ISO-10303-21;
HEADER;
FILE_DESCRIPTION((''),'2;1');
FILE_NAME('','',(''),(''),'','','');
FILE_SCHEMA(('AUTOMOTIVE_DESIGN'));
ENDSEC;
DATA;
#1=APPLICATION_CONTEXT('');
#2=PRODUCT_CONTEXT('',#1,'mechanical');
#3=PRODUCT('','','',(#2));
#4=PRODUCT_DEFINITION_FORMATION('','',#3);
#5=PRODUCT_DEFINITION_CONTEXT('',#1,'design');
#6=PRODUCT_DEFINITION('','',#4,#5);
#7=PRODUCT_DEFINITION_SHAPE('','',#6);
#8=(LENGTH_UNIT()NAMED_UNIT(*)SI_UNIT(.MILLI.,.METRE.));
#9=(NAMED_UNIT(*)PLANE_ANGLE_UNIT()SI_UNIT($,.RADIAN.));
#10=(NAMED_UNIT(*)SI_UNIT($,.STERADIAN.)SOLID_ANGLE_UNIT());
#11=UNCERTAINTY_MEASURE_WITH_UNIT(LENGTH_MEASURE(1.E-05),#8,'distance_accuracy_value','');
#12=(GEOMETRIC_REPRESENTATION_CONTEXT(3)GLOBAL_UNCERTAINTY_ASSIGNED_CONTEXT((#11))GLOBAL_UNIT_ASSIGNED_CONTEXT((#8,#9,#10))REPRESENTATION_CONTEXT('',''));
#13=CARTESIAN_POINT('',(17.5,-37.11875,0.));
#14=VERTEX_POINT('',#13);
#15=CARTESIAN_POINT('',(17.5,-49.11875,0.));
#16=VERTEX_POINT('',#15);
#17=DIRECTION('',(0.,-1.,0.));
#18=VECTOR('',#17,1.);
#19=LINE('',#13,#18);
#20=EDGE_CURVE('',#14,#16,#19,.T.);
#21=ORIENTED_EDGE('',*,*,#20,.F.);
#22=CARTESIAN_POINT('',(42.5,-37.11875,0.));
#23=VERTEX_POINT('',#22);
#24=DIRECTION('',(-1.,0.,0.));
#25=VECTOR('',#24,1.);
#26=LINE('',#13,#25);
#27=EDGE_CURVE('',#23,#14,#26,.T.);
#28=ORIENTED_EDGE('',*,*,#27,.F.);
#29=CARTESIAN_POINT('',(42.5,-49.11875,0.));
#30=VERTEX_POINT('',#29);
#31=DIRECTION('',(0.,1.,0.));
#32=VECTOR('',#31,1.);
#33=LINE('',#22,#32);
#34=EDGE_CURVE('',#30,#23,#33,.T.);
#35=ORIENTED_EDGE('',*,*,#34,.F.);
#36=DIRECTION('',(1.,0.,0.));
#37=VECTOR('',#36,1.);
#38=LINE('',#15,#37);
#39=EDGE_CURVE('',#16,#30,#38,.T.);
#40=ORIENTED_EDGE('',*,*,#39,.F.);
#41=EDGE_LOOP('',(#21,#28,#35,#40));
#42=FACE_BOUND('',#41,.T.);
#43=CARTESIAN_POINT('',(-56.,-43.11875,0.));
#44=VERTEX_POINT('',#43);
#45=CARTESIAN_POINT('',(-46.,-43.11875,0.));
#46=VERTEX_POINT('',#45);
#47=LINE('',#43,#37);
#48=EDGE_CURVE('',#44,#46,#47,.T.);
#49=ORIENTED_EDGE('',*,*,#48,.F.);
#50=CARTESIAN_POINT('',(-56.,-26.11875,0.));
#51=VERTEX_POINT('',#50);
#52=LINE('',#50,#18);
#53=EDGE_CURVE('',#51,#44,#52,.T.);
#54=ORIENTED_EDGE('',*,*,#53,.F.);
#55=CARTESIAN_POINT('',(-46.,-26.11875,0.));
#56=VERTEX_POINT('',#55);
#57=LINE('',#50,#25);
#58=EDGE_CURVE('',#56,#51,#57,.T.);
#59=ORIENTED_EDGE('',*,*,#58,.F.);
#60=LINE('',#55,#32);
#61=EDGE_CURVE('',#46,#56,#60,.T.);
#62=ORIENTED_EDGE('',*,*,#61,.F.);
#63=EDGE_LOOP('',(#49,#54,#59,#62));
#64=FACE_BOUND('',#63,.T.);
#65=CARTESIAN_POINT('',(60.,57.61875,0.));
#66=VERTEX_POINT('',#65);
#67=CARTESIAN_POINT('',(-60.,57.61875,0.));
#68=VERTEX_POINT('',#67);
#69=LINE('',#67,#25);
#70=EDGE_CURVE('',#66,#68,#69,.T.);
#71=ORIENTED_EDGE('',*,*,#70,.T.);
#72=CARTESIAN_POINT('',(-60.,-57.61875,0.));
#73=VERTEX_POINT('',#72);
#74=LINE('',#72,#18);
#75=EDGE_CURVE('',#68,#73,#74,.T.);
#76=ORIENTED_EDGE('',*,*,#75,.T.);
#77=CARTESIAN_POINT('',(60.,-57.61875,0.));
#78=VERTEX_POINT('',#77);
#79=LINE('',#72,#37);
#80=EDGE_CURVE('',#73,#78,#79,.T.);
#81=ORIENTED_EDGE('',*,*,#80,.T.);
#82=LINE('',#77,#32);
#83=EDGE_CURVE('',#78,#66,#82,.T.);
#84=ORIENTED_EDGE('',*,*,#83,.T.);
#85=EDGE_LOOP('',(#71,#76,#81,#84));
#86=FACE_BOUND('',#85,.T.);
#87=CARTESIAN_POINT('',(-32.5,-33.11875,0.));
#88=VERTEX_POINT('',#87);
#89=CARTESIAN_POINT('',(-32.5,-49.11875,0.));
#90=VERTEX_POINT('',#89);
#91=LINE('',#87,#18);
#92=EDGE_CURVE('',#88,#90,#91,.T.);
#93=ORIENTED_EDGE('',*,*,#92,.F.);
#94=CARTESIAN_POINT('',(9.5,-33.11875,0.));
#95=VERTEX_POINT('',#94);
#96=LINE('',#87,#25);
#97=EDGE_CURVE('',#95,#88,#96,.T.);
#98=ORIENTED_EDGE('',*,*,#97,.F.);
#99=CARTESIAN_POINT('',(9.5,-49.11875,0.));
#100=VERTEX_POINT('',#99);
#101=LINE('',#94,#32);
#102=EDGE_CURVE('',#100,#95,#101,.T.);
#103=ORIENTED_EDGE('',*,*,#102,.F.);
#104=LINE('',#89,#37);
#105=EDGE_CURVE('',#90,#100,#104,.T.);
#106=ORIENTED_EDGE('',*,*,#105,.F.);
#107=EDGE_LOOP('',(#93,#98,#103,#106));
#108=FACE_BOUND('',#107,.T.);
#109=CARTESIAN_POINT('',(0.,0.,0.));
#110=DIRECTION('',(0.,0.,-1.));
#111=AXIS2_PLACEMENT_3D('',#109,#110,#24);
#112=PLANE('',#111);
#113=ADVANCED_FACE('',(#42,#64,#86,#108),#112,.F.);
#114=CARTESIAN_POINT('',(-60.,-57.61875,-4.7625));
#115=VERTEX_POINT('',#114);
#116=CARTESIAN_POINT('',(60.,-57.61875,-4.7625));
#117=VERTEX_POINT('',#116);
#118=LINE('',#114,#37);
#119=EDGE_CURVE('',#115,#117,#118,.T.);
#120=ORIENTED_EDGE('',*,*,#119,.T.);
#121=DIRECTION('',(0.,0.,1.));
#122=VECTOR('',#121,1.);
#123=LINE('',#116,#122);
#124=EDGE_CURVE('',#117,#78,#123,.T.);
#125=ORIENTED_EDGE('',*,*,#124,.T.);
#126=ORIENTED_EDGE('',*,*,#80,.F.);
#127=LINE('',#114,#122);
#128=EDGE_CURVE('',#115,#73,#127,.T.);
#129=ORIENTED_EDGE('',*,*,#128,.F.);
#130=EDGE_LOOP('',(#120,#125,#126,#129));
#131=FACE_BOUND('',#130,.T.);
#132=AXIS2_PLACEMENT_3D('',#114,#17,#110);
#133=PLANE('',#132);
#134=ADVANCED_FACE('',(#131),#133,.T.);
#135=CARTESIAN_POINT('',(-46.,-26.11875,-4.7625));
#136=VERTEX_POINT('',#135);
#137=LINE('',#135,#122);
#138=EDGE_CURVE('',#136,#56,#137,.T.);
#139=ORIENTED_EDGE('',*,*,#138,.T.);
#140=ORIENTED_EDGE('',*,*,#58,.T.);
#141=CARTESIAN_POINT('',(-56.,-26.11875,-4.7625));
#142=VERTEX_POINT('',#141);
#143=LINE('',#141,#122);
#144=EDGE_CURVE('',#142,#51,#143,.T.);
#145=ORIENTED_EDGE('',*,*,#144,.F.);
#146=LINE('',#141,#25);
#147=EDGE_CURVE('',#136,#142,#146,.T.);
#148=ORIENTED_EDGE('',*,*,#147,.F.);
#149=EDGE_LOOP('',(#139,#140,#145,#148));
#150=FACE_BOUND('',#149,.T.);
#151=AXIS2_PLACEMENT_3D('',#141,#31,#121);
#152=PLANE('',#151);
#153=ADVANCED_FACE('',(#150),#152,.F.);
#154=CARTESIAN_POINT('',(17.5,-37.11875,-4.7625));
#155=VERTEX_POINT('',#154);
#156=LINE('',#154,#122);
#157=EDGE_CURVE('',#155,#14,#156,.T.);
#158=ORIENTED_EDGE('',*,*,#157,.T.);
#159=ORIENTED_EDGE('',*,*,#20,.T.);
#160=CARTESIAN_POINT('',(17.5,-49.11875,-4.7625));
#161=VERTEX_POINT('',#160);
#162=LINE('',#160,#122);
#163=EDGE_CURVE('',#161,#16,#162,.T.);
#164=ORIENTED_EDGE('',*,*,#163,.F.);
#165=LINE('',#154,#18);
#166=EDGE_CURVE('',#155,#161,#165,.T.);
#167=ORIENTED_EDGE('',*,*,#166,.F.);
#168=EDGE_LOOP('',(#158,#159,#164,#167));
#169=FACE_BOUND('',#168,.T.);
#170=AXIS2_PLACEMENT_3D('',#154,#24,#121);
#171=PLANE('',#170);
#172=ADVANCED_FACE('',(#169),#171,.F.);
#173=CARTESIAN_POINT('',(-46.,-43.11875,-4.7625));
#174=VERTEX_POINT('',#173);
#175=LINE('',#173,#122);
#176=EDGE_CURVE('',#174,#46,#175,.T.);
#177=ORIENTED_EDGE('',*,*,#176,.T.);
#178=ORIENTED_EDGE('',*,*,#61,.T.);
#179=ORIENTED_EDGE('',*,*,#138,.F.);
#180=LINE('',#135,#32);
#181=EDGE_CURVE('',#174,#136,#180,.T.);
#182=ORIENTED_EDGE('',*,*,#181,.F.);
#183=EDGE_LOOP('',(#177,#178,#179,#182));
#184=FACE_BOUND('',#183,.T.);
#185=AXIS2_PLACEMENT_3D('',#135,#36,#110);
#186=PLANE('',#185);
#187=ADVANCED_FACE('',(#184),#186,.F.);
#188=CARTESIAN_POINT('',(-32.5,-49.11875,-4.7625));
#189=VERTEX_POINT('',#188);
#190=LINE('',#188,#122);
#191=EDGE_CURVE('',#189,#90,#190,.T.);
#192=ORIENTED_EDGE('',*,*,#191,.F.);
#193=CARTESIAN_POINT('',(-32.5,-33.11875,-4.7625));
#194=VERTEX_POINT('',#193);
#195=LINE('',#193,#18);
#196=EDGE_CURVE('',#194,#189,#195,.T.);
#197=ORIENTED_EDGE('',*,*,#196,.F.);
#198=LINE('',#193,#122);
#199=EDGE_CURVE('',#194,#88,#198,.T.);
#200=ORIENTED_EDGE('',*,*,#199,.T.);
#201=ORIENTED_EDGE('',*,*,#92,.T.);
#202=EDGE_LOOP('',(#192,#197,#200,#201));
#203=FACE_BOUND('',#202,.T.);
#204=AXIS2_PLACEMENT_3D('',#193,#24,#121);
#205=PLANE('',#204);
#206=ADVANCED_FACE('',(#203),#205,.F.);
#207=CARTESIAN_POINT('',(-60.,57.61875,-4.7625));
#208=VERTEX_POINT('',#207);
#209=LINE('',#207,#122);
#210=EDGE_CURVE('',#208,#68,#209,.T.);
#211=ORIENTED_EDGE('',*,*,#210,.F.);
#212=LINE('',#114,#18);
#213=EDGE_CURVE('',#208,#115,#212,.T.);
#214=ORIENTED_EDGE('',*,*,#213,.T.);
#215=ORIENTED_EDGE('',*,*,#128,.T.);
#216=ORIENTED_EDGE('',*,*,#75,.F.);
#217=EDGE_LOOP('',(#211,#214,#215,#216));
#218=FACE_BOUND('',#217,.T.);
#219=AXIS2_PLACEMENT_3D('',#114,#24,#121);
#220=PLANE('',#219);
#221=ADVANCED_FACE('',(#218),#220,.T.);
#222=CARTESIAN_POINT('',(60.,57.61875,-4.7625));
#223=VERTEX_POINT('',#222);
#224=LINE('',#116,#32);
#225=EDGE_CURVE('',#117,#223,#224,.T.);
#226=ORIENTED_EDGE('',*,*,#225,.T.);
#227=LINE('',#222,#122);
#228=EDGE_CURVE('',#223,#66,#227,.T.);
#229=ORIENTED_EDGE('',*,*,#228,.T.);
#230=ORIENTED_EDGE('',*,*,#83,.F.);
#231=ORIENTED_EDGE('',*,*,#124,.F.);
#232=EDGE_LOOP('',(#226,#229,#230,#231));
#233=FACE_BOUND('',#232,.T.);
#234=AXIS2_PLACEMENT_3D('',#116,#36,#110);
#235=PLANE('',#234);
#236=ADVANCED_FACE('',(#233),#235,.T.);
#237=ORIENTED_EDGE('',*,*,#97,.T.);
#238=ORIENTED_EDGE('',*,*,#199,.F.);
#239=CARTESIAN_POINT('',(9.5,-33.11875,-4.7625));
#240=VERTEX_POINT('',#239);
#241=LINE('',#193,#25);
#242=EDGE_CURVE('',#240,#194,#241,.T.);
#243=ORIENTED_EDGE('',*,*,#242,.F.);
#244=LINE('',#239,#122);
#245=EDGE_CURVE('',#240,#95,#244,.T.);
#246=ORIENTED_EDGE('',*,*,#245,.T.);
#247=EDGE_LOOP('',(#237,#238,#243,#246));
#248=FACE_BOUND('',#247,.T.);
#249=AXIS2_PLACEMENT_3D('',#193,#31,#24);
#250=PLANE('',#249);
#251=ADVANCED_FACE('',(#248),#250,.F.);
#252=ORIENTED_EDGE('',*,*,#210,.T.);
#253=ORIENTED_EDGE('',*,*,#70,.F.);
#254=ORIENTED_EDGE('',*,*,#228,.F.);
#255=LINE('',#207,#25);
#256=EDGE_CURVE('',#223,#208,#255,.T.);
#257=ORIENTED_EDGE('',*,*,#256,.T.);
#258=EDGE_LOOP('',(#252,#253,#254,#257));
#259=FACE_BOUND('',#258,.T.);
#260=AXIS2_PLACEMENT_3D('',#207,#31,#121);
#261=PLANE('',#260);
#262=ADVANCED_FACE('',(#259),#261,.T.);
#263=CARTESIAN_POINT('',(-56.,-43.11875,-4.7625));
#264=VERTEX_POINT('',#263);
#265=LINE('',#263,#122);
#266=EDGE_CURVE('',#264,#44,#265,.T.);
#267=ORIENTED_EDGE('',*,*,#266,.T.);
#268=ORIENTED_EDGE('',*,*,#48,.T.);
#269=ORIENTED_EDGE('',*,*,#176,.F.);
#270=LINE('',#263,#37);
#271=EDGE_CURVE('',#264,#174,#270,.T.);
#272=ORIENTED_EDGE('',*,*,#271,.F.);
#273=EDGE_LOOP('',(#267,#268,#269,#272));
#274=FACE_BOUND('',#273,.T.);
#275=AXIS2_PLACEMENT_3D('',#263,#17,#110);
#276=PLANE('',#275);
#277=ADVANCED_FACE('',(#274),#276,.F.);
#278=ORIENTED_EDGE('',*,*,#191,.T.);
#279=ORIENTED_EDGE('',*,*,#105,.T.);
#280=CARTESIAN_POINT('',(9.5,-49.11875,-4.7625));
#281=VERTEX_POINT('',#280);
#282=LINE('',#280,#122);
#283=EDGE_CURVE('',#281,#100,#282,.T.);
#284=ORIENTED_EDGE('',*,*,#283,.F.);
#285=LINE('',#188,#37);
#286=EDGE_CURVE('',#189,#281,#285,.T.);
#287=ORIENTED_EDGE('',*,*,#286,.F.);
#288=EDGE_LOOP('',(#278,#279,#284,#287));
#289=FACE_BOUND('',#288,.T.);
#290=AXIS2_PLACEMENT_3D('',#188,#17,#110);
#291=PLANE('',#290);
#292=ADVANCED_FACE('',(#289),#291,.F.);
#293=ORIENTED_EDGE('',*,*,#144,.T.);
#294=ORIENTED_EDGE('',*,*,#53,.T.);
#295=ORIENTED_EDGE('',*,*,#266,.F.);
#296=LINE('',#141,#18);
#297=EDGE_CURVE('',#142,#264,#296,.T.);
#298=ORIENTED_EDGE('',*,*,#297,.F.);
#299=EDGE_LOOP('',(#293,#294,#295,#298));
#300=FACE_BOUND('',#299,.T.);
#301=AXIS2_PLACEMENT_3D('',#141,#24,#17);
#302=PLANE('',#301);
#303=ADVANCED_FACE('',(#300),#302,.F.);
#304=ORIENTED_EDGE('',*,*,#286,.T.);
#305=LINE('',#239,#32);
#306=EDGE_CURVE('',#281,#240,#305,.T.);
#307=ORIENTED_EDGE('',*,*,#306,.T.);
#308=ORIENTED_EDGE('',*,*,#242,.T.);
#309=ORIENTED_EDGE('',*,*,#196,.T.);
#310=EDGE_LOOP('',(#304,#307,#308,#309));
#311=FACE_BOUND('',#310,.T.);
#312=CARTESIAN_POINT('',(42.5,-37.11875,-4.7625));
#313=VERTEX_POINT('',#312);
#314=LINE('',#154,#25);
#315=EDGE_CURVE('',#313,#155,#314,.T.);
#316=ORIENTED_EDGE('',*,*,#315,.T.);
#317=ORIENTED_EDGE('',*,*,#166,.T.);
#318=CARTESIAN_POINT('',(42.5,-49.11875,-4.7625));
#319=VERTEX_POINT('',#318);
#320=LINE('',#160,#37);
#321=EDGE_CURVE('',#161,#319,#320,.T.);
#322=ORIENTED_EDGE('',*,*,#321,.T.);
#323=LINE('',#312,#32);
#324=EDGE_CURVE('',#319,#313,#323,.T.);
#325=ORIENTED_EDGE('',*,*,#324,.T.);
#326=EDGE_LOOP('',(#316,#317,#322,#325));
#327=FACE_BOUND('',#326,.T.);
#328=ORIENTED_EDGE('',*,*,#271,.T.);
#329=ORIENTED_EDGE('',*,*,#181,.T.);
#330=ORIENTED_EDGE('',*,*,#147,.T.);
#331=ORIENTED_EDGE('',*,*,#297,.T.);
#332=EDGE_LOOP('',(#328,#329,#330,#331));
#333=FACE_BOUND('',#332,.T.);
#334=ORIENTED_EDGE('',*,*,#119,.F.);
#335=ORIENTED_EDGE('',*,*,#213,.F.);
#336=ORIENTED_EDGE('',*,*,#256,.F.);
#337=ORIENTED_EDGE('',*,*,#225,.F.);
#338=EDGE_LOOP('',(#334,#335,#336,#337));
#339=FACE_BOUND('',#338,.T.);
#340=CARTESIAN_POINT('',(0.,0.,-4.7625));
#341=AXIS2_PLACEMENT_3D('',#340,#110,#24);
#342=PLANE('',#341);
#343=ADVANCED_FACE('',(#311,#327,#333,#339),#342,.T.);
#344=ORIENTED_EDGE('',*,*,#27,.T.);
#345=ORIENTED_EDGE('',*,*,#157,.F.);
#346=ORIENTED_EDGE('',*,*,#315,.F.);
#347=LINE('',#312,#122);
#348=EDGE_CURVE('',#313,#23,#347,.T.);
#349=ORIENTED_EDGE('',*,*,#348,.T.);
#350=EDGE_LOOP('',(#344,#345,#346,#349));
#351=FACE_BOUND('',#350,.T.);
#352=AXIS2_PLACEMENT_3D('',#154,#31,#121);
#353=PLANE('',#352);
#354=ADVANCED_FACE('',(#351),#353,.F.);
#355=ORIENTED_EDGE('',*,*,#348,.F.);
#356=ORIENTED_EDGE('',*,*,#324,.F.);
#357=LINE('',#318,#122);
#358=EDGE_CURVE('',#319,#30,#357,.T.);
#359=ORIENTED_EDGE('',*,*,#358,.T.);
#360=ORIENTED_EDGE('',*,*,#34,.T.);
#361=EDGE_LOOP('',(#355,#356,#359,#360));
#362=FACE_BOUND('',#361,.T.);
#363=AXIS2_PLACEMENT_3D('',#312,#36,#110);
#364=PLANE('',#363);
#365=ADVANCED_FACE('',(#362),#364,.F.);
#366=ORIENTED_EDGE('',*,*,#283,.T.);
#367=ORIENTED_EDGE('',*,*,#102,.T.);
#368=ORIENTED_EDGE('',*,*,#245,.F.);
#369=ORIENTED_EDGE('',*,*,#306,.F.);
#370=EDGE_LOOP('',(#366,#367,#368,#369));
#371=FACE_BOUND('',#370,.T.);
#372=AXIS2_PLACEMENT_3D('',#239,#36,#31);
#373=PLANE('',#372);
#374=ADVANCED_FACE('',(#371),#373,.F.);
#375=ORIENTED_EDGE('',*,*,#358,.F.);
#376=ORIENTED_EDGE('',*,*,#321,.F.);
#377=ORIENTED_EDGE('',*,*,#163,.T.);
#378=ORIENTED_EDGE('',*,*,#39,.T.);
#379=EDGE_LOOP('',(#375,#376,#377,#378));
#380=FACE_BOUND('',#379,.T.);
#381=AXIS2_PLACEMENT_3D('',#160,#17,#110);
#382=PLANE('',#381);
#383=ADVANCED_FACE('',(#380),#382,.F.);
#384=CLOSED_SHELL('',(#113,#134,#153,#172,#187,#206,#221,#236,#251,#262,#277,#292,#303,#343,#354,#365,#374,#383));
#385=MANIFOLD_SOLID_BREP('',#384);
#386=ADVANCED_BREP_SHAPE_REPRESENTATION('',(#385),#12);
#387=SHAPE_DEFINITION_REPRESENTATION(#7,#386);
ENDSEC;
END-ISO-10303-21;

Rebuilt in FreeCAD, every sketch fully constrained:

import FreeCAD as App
import Part
import Sketcher
Q = App.Units.Quantity


def add_polygon(sketch, points):
    """Adds a closed chain of lines whose ends are joined by coincident constraints."""
    first, n = sketch.GeometryCount, len(points)
    for a, b in zip(points, points[1:] + points[:1]):
        sketch.addGeometry(Part.LineSegment(App.Vector(*a, 0), App.Vector(*b, 0)), False)
    for i in range(n):
        sketch.addConstraint(Sketcher.Constraint("Coincident", first + i, 2, first + (i + 1) % n, 1))

doc = App.newDocument("Part")
body = doc.addObject("PartDesign::Body", "Body")

# Sketch on XY plane
sketch1 = body.newObject("Sketcher::SketchObject", "Sketch")
sketch1.AttachmentSupport = (doc.getObject("XY_Plane"), [""])
sketch1.MapMode = "FlatFace"
add_polygon(sketch1, [(-60, 58), (-60, -58), (60, -58), (60, 58)])  # lines 0-3
sketch1.addConstraint([
    Sketcher.Constraint("Vertical", 0),
    Sketcher.Constraint("Horizontal", 1),
    Sketcher.Constraint("Vertical", 2),
    Sketcher.Constraint("Horizontal", 3),
    Sketcher.Constraint("Symmetric", 0, 2, 2, 2, -1, 1),
    Sketcher.Constraint("DistanceX", 1, 1, 1, 2, Q("120 mm")),
    Sketcher.Constraint("DistanceY", 0, 2, 0, 1, Q("115.2375 mm")),
])
pad1 = body.newObject("PartDesign::Pad", "Pad")
pad1.Profile = sketch1
pad1.Length = 4.7625
pad1.Reversed = True

# Sketch on XY plane
sketch2 = body.newObject("Sketcher::SketchObject", "Sketch001")
sketch2.AttachmentSupport = (doc.getObject("XY_Plane"), [""])
sketch2.MapMode = "FlatFace"
add_polygon(sketch2, [(18, -37), (18, -49), (42, -49), (42, -37)])  # lines 0-3
add_polygon(sketch2, [(-32, -33), (-32, -49), (10, -49), (10, -33)])  # lines 4-7
add_polygon(sketch2, [(-56, -26), (-56, -43), (-46, -43), (-46, -26)])  # lines 8-11
sketch2.addConstraint([
    Sketcher.Constraint("Vertical", 0),
    Sketcher.Constraint("Horizontal", 1),
    Sketcher.Constraint("Vertical", 2),
    Sketcher.Constraint("Horizontal", 3),
    Sketcher.Constraint("Vertical", 4),
    Sketcher.Constraint("Horizontal", 5),
    Sketcher.Constraint("Vertical", 6),
    Sketcher.Constraint("Horizontal", 7),
    Sketcher.Constraint("Vertical", 8),
    Sketcher.Constraint("Horizontal", 9),
    Sketcher.Constraint("Vertical", 10),
    Sketcher.Constraint("Horizontal", 11),
    Sketcher.Constraint("Horizontal", 1, 2, 4, 2),
    Sketcher.Constraint("DistanceX", 1, 1, 1, 2, Q("25 mm")),
    Sketcher.Constraint("DistanceX", 5, 1, 5, 2, Q("42 mm")),
    Sketcher.Constraint("DistanceX", 9, 1, 9, 2, Q("10 mm")),
    Sketcher.Constraint("DistanceY", 0, 2, 0, 1, Q("12 mm")),
    Sketcher.Constraint("DistanceY", 4, 2, 4, 1, Q("16 mm")),
    Sketcher.Constraint("DistanceY", 8, 2, 8, 1, Q("17 mm")),
    Sketcher.Constraint("DistanceX", 8, 2, -1, 1, Q("56 mm")),
    Sketcher.Constraint("DistanceX", 4, 2, 0, 2, Q("50 mm")),
    Sketcher.Constraint("DistanceY", 4, 2, 8, 2, Q("6 mm")),
    Sketcher.Constraint("DistanceX", -1, 1, 0, 2, Q("17.5 mm")),
    Sketcher.Constraint("DistanceY", 0, 2, -1, 1, Q("49.11875 mm")),
])
pocket1 = body.newObject("PartDesign::Pocket", "Pocket")
pocket1.Profile = sketch2
pocket1.Type = "ThroughAll"

doc.recompute()
